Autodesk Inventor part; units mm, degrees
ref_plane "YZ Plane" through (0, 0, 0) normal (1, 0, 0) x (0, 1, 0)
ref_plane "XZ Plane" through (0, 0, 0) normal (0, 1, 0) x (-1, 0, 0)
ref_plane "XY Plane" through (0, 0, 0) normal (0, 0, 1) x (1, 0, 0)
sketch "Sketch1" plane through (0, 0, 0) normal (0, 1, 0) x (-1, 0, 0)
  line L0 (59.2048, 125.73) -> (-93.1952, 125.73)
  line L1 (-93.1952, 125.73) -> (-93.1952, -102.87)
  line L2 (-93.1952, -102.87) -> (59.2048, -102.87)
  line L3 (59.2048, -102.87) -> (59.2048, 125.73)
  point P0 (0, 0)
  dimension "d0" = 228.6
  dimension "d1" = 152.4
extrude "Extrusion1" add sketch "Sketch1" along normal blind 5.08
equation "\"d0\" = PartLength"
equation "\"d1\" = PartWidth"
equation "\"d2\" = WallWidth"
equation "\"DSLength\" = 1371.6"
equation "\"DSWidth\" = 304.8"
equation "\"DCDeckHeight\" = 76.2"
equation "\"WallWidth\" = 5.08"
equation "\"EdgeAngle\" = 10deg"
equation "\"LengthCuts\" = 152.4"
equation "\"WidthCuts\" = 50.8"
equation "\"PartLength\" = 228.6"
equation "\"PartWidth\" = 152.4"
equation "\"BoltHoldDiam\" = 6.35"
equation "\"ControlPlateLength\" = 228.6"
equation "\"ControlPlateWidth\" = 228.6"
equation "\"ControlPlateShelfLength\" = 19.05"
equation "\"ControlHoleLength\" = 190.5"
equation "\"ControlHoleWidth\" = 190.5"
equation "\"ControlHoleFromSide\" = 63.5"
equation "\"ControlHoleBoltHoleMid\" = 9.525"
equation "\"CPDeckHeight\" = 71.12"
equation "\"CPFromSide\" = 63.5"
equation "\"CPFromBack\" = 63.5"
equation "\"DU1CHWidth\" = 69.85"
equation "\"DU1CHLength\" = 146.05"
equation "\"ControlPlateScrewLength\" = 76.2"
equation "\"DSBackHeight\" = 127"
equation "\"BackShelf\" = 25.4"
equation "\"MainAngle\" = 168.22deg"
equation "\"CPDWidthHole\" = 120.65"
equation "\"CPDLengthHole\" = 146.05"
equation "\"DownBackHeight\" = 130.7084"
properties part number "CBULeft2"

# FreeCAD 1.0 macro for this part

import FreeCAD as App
import Part
import Sketcher
from FreeCAD import Vector
Q = App.Units.Quantity

doc = App.newDocument("Part")
body = doc.addObject("PartDesign::Body", "Body")

# Sketch on XZ plane
sketch1 = body.newObject("Sketcher::SketchObject", "Sketch")
sketch1.AttachmentSupport = (doc.getObject("XZ_Plane"), [""])
sketch1.MapMode = "FlatFace"
sketch1.addGeometry(Part.LineSegment(Vector(-59, -103, 0), Vector(-59, 126, 0)), False)
sketch1.addGeometry(Part.LineSegment(Vector(-59, 126, 0), Vector(93, 126, 0)), False)
sketch1.addGeometry(Part.LineSegment(Vector(93, 126, 0), Vector(93, -103, 0)), False)
sketch1.addGeometry(Part.LineSegment(Vector(93, -103, 0), Vector(-59, -103, 0)), False)
sketch1.addConstraint(Sketcher.Constraint("Coincident", 0, 2, 1, 1))
sketch1.addConstraint(Sketcher.Constraint("Coincident", 1, 2, 2, 1))
sketch1.addConstraint(Sketcher.Constraint("Coincident", 2, 2, 3, 1))
sketch1.addConstraint(Sketcher.Constraint("Coincident", 3, 2, 0, 1))
sketch1.addConstraint(Sketcher.Constraint("Vertical", 0))
sketch1.addConstraint(Sketcher.Constraint("Horizontal", 1))
sketch1.addConstraint(Sketcher.Constraint("Vertical", 2))
sketch1.addConstraint(Sketcher.Constraint("Horizontal", 3))
sketch1.addConstraint(Sketcher.Constraint("DistanceX", 1, 1, 1, 2, Q("6 in")))
sketch1.addConstraint(Sketcher.Constraint("DistanceY", 0, 1, 0, 2, Q("9 in")))
sketch1.addConstraint(Sketcher.Constraint("DistanceY", -1, 1, 0, 2, Q("4.95 in")))
sketch1.addConstraint(Sketcher.Constraint("DistanceX", 0, 2, -1, 1, Q("2.3309 in")))
pad1 = body.newObject("PartDesign::Pad", "Pad")
pad1.Profile = sketch1
pad1.Length = Q("0.2 in")
pad1.Reversed = True

doc.recompute()
